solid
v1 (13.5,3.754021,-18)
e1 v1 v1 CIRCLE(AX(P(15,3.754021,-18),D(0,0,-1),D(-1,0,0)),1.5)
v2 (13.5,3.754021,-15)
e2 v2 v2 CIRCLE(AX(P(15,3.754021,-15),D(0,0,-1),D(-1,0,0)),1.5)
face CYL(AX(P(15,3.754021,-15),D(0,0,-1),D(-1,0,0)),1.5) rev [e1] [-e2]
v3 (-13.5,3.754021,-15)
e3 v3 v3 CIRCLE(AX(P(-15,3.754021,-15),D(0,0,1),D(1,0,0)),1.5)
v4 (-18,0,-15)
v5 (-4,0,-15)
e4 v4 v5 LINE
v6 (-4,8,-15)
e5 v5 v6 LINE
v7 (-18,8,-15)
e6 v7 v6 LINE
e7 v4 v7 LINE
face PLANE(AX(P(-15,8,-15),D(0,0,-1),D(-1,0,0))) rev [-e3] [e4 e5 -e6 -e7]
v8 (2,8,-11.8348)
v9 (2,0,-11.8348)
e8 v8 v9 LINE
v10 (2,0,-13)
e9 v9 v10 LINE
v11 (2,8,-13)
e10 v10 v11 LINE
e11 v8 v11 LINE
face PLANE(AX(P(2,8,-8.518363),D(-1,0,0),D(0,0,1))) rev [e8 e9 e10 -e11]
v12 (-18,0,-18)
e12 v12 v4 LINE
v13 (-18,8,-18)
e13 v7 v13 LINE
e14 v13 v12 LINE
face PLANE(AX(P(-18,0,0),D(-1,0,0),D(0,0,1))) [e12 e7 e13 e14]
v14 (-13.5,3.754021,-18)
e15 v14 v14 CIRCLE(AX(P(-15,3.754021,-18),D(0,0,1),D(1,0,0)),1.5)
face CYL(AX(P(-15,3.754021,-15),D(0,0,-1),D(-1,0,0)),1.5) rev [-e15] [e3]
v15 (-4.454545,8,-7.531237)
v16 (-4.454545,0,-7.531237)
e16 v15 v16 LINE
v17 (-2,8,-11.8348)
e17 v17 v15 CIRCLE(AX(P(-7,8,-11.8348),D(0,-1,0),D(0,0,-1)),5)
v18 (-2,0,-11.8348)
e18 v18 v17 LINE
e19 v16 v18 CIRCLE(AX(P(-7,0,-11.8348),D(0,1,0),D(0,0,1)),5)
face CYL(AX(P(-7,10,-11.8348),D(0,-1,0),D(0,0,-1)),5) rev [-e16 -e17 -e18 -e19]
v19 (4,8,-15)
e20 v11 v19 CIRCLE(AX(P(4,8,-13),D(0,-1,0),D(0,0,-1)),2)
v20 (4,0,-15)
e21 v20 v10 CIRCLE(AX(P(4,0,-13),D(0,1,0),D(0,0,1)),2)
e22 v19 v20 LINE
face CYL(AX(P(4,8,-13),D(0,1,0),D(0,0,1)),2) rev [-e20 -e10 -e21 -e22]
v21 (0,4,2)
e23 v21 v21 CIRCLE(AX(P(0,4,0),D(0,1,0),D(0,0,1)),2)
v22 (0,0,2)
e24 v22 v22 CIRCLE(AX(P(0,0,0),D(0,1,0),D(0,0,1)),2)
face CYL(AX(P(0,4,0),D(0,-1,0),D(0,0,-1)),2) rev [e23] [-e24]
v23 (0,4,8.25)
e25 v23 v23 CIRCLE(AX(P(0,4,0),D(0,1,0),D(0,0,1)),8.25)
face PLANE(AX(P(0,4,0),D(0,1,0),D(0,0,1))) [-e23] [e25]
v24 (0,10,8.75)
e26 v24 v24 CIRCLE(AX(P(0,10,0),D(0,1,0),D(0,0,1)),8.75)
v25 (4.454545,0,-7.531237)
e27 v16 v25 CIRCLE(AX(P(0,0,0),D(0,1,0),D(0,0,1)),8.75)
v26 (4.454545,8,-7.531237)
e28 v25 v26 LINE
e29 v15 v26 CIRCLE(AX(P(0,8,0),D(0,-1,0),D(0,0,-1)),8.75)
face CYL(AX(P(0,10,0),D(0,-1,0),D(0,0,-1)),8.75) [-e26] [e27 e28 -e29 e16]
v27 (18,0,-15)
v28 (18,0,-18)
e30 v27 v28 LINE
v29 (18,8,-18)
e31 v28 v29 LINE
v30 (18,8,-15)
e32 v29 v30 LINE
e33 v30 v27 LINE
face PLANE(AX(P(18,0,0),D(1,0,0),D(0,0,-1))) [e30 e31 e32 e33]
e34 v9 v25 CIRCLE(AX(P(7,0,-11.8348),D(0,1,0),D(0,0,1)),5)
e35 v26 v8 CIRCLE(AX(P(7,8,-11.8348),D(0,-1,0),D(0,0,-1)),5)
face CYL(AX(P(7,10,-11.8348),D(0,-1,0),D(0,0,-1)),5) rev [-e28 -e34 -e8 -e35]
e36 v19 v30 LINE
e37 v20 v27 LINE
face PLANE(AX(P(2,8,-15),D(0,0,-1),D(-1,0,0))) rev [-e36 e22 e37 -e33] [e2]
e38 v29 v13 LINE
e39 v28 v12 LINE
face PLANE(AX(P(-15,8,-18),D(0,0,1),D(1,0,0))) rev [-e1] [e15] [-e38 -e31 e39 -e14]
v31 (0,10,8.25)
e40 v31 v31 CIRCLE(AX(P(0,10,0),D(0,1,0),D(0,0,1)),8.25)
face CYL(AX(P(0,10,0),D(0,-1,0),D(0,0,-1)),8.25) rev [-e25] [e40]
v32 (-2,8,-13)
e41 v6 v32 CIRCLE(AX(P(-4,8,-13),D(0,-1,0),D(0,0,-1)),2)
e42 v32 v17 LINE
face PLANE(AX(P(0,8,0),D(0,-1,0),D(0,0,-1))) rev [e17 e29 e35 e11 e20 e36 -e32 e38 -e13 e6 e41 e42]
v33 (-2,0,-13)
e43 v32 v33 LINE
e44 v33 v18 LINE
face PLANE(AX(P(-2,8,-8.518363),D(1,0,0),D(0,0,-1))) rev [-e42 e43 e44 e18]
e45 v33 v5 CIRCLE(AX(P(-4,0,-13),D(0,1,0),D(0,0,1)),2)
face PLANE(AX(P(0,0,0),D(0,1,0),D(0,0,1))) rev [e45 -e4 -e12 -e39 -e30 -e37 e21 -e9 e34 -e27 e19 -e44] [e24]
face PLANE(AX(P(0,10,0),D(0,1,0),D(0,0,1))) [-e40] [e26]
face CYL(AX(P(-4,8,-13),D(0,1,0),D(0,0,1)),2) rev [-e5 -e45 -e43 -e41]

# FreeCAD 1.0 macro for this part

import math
import FreeCAD as App
import Part
import Sketcher

V = App.Vector
Q = App.Units.Quantity


def edges_at(feature, points):
    """Names of the edges that pass closest to the given points."""
    edges = feature.Shape.Edges
    near = lambda p: min(range(len(edges)), key=lambda i: edges[i].distToShape(Part.Vertex(*p))[0])
    return sorted({f"Edge{near(p) + 1}" for p in points})


def add_polygon(sketch, points):
    """Adds a closed chain of lines whose ends are joined by coincident constraints."""
    first, n = sketch.GeometryCount, len(points)
    for a, b in zip(points, points[1:] + points[:1]):
        sketch.addGeometry(Part.LineSegment(App.Vector(*a, 0), App.Vector(*b, 0)), False)
    for i in range(n):
        sketch.addConstraint(Sketcher.Constraint("Coincident", first + i, 2, first + (i + 1) % n, 1))

doc = App.newDocument("Part")
body = doc.addObject("PartDesign::Body", "Body")

# Sketch on XZ plane
sketch1 = doc.addObject("Sketcher::SketchObject", "Sketch")
body.addObject(sketch1)
sketch1.AttachmentSupport = (doc.XZ_Plane, [""])
sketch1.MapMode = "FlatFace"
sketch1.addGeometry(Part.Circle(V(0, 0, 0), V(0, 0, 1), 8.75), False)
sketch1.addGeometry(Part.Circle(V(0, 0, 0), V(0, 0, 1), 8.25), False)
sketch1.addConstraint(Sketcher.Constraint("Coincident", 0, 3, -1, 1))
sketch1.addConstraint(Sketcher.Constraint("Coincident", 1, 3, -1, 1))
sketch1.addConstraint(Sketcher.Constraint("Diameter", 0, Q("17.5 mm")))
sketch1.addConstraint(Sketcher.Constraint("Diameter", 1, Q("16.5 mm")))
pad1 = doc.addObject("PartDesign::Pad", "Pad")
body.addObject(pad1)
pad1.Profile = sketch1
pad1.Length = 10
pad1.Reversed = True

# Sketch on XZ plane
sketch2 = doc.addObject("Sketcher::SketchObject", "Sketch001")
body.addObject(sketch2)
sketch2.AttachmentSupport = (doc.XZ_Plane, [""])
sketch2.MapMode = "FlatFace"
sketch2.addGeometry(Part.Circle(V(0, 0, 0), V(0, 0, 1), 8.25), False)
sketch2.addGeometry(Part.Circle(V(0, 0, 0), V(0, 0, 1), 2), False)
sketch2.addConstraint(Sketcher.Constraint("Coincident", 0, 3, -1, 1))
sketch2.addConstraint(Sketcher.Constraint("Coincident", 1, 3, -1, 1))
sketch2.addConstraint(Sketcher.Constraint("Diameter", 1, Q("4 mm")))
sketch2.addConstraint(Sketcher.Constraint("Diameter", 0, Q("16.5 mm")))
pad2 = doc.addObject("PartDesign::Pad", "Pad001")
body.addObject(pad2)
pad2.Profile = sketch2
pad2.Length = 4
pad2.Reversed = True

# Sketch on XZ plane
sketch3 = doc.addObject("Sketcher::SketchObject", "Sketch002")
body.addObject(sketch3)
sketch3.AttachmentSupport = (doc.XZ_Plane, [""])
sketch3.MapMode = "FlatFace"
add_polygon(sketch3, [(-2, -8.518363), (2, -8.518363), (2, -15), (15, -15), (15, -18), (-15, -18), (-15, -15), (-2, -15)])  # lines 0-7
sketch3.addConstraint(Sketcher.Constraint("Horizontal", 0))
sketch3.addConstraint(Sketcher.Constraint("Vertical", 1))
sketch3.addConstraint(Sketcher.Constraint("Horizontal", 2))
sketch3.addConstraint(Sketcher.Constraint("Vertical", 3))
sketch3.addConstraint(Sketcher.Constraint("Horizontal", 4))
sketch3.addConstraint(Sketcher.Constraint("Vertical", 5))
sketch3.addConstraint(Sketcher.Constraint("Horizontal", 6))
sketch3.addConstraint(Sketcher.Constraint("Vertical", 7))
sketch3.addConstraint(Sketcher.Constraint("Symmetric", 2, 2, 5, 2, -2))
sketch3.addConstraint(Sketcher.Constraint("Equal", 2, 6))
sketch3.addConstraint(Sketcher.Constraint("DistanceX", 0, 1, 0, 2, Q("4 mm")))
sketch3.addConstraint(Sketcher.Constraint("DistanceX", 2, 1, 2, 2, Q("13 mm")))
sketch3.addConstraint(Sketcher.Constraint("DistanceY", 3, 2, 3, 1, Q("3 mm")))
sketch3.addConstraint(Sketcher.Constraint("DistanceY", 1, 2, -1, 1, Q("15 mm")))
sketch3.addConstraint(Sketcher.Constraint("DistanceY", 1, 2, 1, 1, Q("6.481637 mm")))
pad3 = doc.addObject("PartDesign::Pad", "Pad002")
body.addObject(pad3)
pad3.Profile = sketch3
pad3.Length = 8
pad3.Reversed = True

# Sketch on YZ plane
sketch4 = doc.addObject("Sketcher::SketchObject", "Sketch003")
body.addObject(sketch4)
sketch4.AttachmentSupport = (doc.YZ_Plane, [""])
sketch4.MapMode = "FlatFace"
sketch4.AttachmentOffset = App.Placement(V(0, 0, 15), App.Rotation())
add_polygon(sketch4, [(8, -15), (0, -15), (0, -18), (8, -18)])  # lines 0-3
sketch4.addConstraint(Sketcher.Constraint("Horizontal", 0))
sketch4.addConstraint(Sketcher.Constraint("Vertical", 1))
sketch4.addConstraint(Sketcher.Constraint("Horizontal", 2))
sketch4.addConstraint(Sketcher.Constraint("Vertical", 3))
sketch4.addConstraint(Sketcher.Constraint("PointOnObject", 0, 2, -2))
sketch4.addConstraint(Sketcher.Constraint("DistanceX", 0, 2, 0, 1, Q("8 mm")))
sketch4.addConstraint(Sketcher.Constraint("DistanceY", 1, 2, 1, 1, Q("3 mm")))
sketch4.addConstraint(Sketcher.Constraint("DistanceY", 0, 2, -1, 1, Q("15 mm")))
pad4 = doc.addObject("PartDesign::Pad", "Pad003")
body.addObject(pad4)
pad4.Profile = sketch4
pad4.Length = 3

# Sketch on YZ plane
sketch5 = doc.addObject("Sketcher::SketchObject", "Sketch004")
body.addObject(sketch5)
sketch5.AttachmentSupport = (doc.YZ_Plane, [""])
sketch5.MapMode = "FlatFace"
sketch5.AttachmentOffset = App.Placement(V(0, 0, -15), App.Rotation())
add_polygon(sketch5, [(8, -18), (0, -18), (0, -15), (8, -15)])  # lines 0-3
sketch5.addConstraint(Sketcher.Constraint("Horizontal", 0))
sketch5.addConstraint(Sketcher.Constraint("Vertical", 1))
sketch5.addConstraint(Sketcher.Constraint("Horizontal", 2))
sketch5.addConstraint(Sketcher.Constraint("Vertical", 3))
sketch5.addConstraint(Sketcher.Constraint("PointOnObject", 0, 2, -2))
sketch5.addConstraint(Sketcher.Constraint("DistanceX", 0, 2, 0, 1, Q("8 mm")))
sketch5.addConstraint(Sketcher.Constraint("DistanceY", 1, 1, 1, 2, Q("3 mm")))
sketch5.addConstraint(Sketcher.Constraint("DistanceY", 0, 2, -1, 1, Q("18 mm")))
pad5 = doc.addObject("PartDesign::Pad", "Pad004")
body.addObject(pad5)
pad5.Profile = sketch5
pad5.Length = 3
pad5.Reversed = True

# Sketch on XY plane
sketch6 = doc.addObject("Sketcher::SketchObject", "Sketch005")
body.addObject(sketch6)
sketch6.AttachmentSupport = (doc.XY_Plane, [""])
sketch6.MapMode = "FlatFace"
sketch6.AttachmentOffset = App.Placement(V(0, 0, -18), App.Rotation())
sketch6.addGeometry(Part.Circle(V(15, 3.754021, 0), V(0, 0, 1), 1.5), False)
sketch6.addConstraint(Sketcher.Constraint("Diameter", 0, Q("3 mm")))
sketch6.addConstraint(Sketcher.Constraint("DistanceX", -1, 1, 0, 3, Q("15 mm")))
sketch6.addConstraint(Sketcher.Constraint("DistanceY", -1, 1, 0, 3, Q("3.754021 mm")))
pocket1 = doc.addObject("PartDesign::Pocket", "Pocket")
body.addObject(pocket1)
pocket1.Profile = sketch6
pocket1.Length = 3
pocket1.Reversed = True
doc.recompute()

mirrored = doc.addObject("PartDesign::Mirrored", "Mirrored")
body.addObject(mirrored)
mirrored.Originals = [pocket1]
mirrored.MirrorPlane = (doc.YZ_Plane, [""])
body.Tip = mirrored
doc.recompute()

fillet = doc.addObject("PartDesign::Fillet", "Fillet")
body.addObject(fillet)
fillet.Base = (mirrored, edges_at(mirrored, [(-2, 4, -8.518), (2, 4, -8.518)]))
fillet.Radius = 5
doc.recompute()

fillet2 = doc.addObject("PartDesign::Fillet", "Fillet001")
body.addObject(fillet2)
fillet2.Base = (fillet, edges_at(fillet, [(-2, 4, -15), (2, 4, -15)]))
fillet2.Radius = 2
body2 = doc.addObject("PartDesign::Body", "Body001")

# Sketch on XZ plane
sketch7 = doc.addObject("Sketcher::SketchObject", "Sketch006")
body2.addObject(sketch7)
sketch7.AttachmentSupport = (doc.getObject("XZ_Plane001"), [""])
sketch7.MapMode = "FlatFace"
sketch7.addGeometry(Part.Circle(V(27.184955, 0, 0), V(0, 0, 1), 8.75), False)
sketch7.addGeometry(Part.Circle(V(27.184955, 0, 0), V(0, 0, 1), 8.25), False)
sketch7.addConstraint(Sketcher.Constraint("Coincident", 1, 3, 0, 3))
sketch7.addConstraint(Sketcher.Constraint("PointOnObject", 0, 3, -1))
sketch7.addConstraint(Sketcher.Constraint("Diameter", 0, Q("17.5 mm")))
sketch7.addConstraint(Sketcher.Constraint("Diameter", 1, Q("16.5 mm")))
sketch7.addConstraint(Sketcher.Constraint("DistanceX", -1, 1, 0, 3, Q("27.184955 mm")))
pad6 = doc.addObject("PartDesign::Pad", "Pad005")
body2.addObject(pad6)
pad6.Profile = sketch7
pad6.Length = 8
pad6.Reversed = True

# Sketch on XZ plane
sketch8 = doc.addObject("Sketcher::SketchObject", "Sketch007")
body2.addObject(sketch8)
sketch8.AttachmentSupport = (doc.getObject("XZ_Plane001"), [""])
sketch8.MapMode = "FlatFace"
sketch8.addGeometry(Part.Circle(V(27.184955, 0, 0), V(0, 0, 1), 8.25), False)
sketch8.addGeometry(Part.Circle(V(27.184955, 0, 0), V(0, 0, 1), 6), False)
sketch8.addConstraint(Sketcher.Constraint("Coincident", 1, 3, 0, 3))
sketch8.addConstraint(Sketcher.Constraint("PointOnObject", 0, 3, -1))
sketch8.addConstraint(Sketcher.Constraint("Diameter", 1, Q("12 mm")))
sketch8.addConstraint(Sketcher.Constraint("Diameter", 0, Q("16.5 mm")))
sketch8.addConstraint(Sketcher.Constraint("DistanceX", -1, 1, 0, 3, Q("27.184955 mm")))
pad7 = doc.addObject("PartDesign::Pad", "Pad006")
body2.addObject(pad7)
pad7.Profile = sketch8
pad7.Length = 2
pad7.Reversed = True

# Sketch on XZ plane
sketch9 = doc.addObject("Sketcher::SketchObject", "Sketch008")
body2.addObject(sketch9)
sketch9.AttachmentSupport = (doc.getObject("XZ_Plane001"), [""])
sketch9.MapMode = "FlatFace"
add_polygon(sketch9, [(45.184955, 18), (45.184955, 14.663868), (29.184955, 14.663868), (29.184955, 8.518363), (25.184955, 8.518363), (25.184955, 14.663868), (9.184955, 14.663868), (9.184955, 18)])  # lines 0-7
sketch9.addConstraint(Sketcher.Constraint("Vertical", 0))
sketch9.addConstraint(Sketcher.Constraint("Horizontal", 1))
sketch9.addConstraint(Sketcher.Constraint("Vertical", 2))
sketch9.addConstraint(Sketcher.Constraint("Horizontal", 3))
sketch9.addConstraint(Sketcher.Constraint("Vertical", 4))
sketch9.addConstraint(Sketcher.Constraint("Horizontal", 5))
sketch9.addConstraint(Sketcher.Constraint("Vertical", 6))
sketch9.addConstraint(Sketcher.Constraint("Horizontal", 7))
sketch9.addConstraint(Sketcher.Constraint("Horizontal", 1, 2, 4, 2))
sketch9.addConstraint(Sketcher.Constraint("Equal", 1, 5))
sketch9.addConstraint(Sketcher.Constraint("DistanceX", 1, 2, 1, 1, Q("16 mm")))
sketch9.addConstraint(Sketcher.Constraint("DistanceX", 3, 2, 3, 1, Q("4 mm")))
sketch9.addConstraint(Sketcher.Constraint("DistanceY", -1, 1, 6, 2, Q("18 mm")))
sketch9.addConstraint(Sketcher.Constraint("DistanceY", 0, 2, 0, 1, Q("3.336132 mm")))
sketch9.addConstraint(Sketcher.Constraint("DistanceY", 2, 2, 2, 1, Q("6.145505 mm")))
sketch9.addConstraint(Sketcher.Constraint("DistanceX", -1, 1, 0, 2, Q("45.184955 mm")))
pad8 = doc.addObject("PartDesign::Pad", "Pad007")
body2.addObject(pad8)
pad8.Profile = sketch9
pad8.Length = 8
pad8.Reversed = True

# Sketch on XY plane
sketch10 = doc.addObject("Sketcher::SketchObject", "Sketch009")
body2.addObject(sketch10)
sketch10.AttachmentSupport = (doc.getObject("XY_Plane001"), [""])
sketch10.MapMode = "FlatFace"
sketch10.AttachmentOffset = App.Placement(V(0, 0, 18), App.Rotation())
sketch10.addGeometry(Part.Circle(V(12.184955, 4, 0), V(0, 0, 1), 1.5), False)
sketch10.addGeometry(Part.Circle(V(42.184955, 4, 0), V(0, 0, 1), 1.5), False)
sketch10.addConstraint(Sketcher.Constraint("Equal", 0, 1))
sketch10.addConstraint(Sketcher.Constraint("Horizontal", 0, 3, 1, 3))
sketch10.addConstraint(Sketcher.Constraint("Diameter", 0, Q("3 mm")))
sketch10.addConstraint(Sketcher.Constraint("DistanceY", -1, 1, 0, 3, Q("4 mm")))
sketch10.addConstraint(Sketcher.Constraint("DistanceX", 0, 3, 1, 3, Q("30 mm")))
sketch10.addConstraint(Sketcher.Constraint("DistanceX", -1, 1, 0, 3, Q("12.184955 mm")))
pocket2 = doc.addObject("PartDesign::Pocket", "Pocket001")
body2.addObject(pocket2)
pocket2.Profile = sketch10
pocket2.Length = 8

# Sketch on XY plane
sketch11 = doc.addObject("Sketcher::SketchObject", "Sketch010")
body2.addObject(sketch11)
sketch11.AttachmentSupport = (doc.getObject("XY_Plane001"), [""])
sketch11.MapMode = "FlatFace"
sketch11.AttachmentOffset = App.Placement(V(0, 0, 18), App.Rotation())
sketch11.addGeometry(Part.ArcOfCircle(Part.Circle(V(12.184955, 5, 0), V(0, 0, 1), 1.5), math.radians(0), math.radians(180)), False)
sketch11.addGeometry(Part.LineSegment(V(10.684955, 5, 0), V(10.684955, 3, 0)), False)
sketch11.addGeometry(Part.ArcOfCircle(Part.Circle(V(12.184955, 3, 0), V(0, 0, 1), 1.5), math.radians(180), math.radians(360)), False)
sketch11.addGeometry(Part.LineSegment(V(13.684955, 3, 0), V(13.684955, 5, 0)), False)
sketch11.addConstraint(Sketcher.Constraint("Tangent", 0, 2, 1, 1))
sketch11.addConstraint(Sketcher.Constraint("Tangent", 1, 2, 2, 1))
sketch11.addConstraint(Sketcher.Constraint("Tangent", 2, 2, 3, 1))
sketch11.addConstraint(Sketcher.Constraint("Tangent", 3, 2, 0, 1))
sketch11.addConstraint(Sketcher.Constraint("Vertical", 1))
sketch11.addConstraint(Sketcher.Constraint("Vertical", 3))
sketch11.addConstraint(Sketcher.Constraint("Radius", 0, Q("1.5 mm")))
sketch11.addConstraint(Sketcher.Constraint("DistanceY", 1, 2, 1, 1, Q("2 mm")))
sketch11.addConstraint(Sketcher.Constraint("DistanceY", -1, 1, 0, 3, Q("5 mm")))
sketch11.addConstraint(Sketcher.Constraint("DistanceX", -1, 1, 0, 3, Q("12.184955 mm")))
pocket3 = doc.addObject("PartDesign::Pocket", "Pocket002")
body2.addObject(pocket3)
pocket3.Profile = sketch11
pocket3.Length = 8

# Sketch on XY plane
sketch12 = doc.addObject("Sketcher::SketchObject", "Sketch011")
body2.addObject(sketch12)
sketch12.AttachmentSupport = (doc.getObject("XY_Plane001"), [""])
sketch12.MapMode = "FlatFace"
sketch12.AttachmentOffset = App.Placement(V(0, 0, 18), App.Rotation())
sketch12.addGeometry(Part.ArcOfCircle(Part.Circle(V(42.184955, 5, 0), V(0, 0, 1), 1.5), math.radians(0), math.radians(180)), False)
sketch12.addGeometry(Part.LineSegment(V(40.684955, 5, 0), V(40.684955, 3, 0)), False)
sketch12.addGeometry(Part.ArcOfCircle(Part.Circle(V(42.184955, 3, 0), V(0, 0, 1), 1.5), math.radians(180), math.radians(360)), False)
sketch12.addGeometry(Part.LineSegment(V(43.684955, 3, 0), V(43.684955, 5, 0)), False)
sketch12.addConstraint(Sketcher.Constraint("Tangent", 0, 2, 1, 1))
sketch12.addConstraint(Sketcher.Constraint("Tangent", 1, 2, 2, 1))
sketch12.addConstraint(Sketcher.Constraint("Tangent", 2, 2, 3, 1))
sketch12.addConstraint(Sketcher.Constraint("Tangent", 3, 2, 0, 1))
sketch12.addConstraint(Sketcher.Constraint("Vertical", 1))
sketch12.addConstraint(Sketcher.Constraint("Vertical", 3))
sketch12.addConstraint(Sketcher.Constraint("Radius", 0, Q("1.5 mm")))
sketch12.addConstraint(Sketcher.Constraint("DistanceY", 1, 2, 1, 1, Q("2 mm")))
sketch12.addConstraint(Sketcher.Constraint("DistanceY", -1, 1, 0, 3, Q("5 mm")))
sketch12.addConstraint(Sketcher.Constraint("DistanceX", -1, 1, 0, 3, Q("42.184955 mm")))
pocket4 = doc.addObject("PartDesign::Pocket", "Pocket003")
body2.addObject(pocket4)
pocket4.Profile = sketch12
pocket4.Length = 8
body3 = doc.addObject("PartDesign::Body", "Body002")

# Sketch on XZ plane
sketch13 = doc.addObject("Sketcher::SketchObject", "Sketch012")
body3.addObject(sketch13)
sketch13.AttachmentSupport = (doc.getObject("XZ_Plane002"), [""])
sketch13.MapMode = "FlatFace"
sketch13.addGeometry(Part.Circle(V(-35.091635, 0, 0), V(0, 0, 1), 8.75), False)
sketch13.addGeometry(Part.Circle(V(-35.091635, 0, 0), V(0, 0, 1), 8.25), False)
sketch13.addConstraint(Sketcher.Constraint("Coincident", 1, 3, 0, 3))
sketch13.addConstraint(Sketcher.Constraint("PointOnObject", 0, 3, -1))
sketch13.addConstraint(Sketcher.Constraint("Diameter", 0, Q("17.5 mm")))
sketch13.addConstraint(Sketcher.Constraint("Diameter", 1, Q("16.5 mm")))
sketch13.addConstraint(Sketcher.Constraint("DistanceX", 0, 3, -1, 1, Q("35.091635 mm")))
pad9 = doc.addObject("PartDesign::Pad", "Pad008")
body3.addObject(pad9)
pad9.Profile = sketch13
pad9.Length = 8
pad9.Reversed = True

# Sketch on XZ plane
sketch14 = doc.addObject("Sketcher::SketchObject", "Sketch013")
body3.addObject(sketch14)
sketch14.AttachmentSupport = (doc.getObject("XZ_Plane002"), [""])
sketch14.MapMode = "FlatFace"
add_polygon(sketch14, [(-37.091635, 8.518363), (-37.091635, 15), (-53.091635, 15), (-53.091635, 18), (-17.091635, 18), (-17.091635, 15), (-33.091635, 15), (-33.091635, 8.518363)])  # lines 0-7
sketch14.addConstraint(Sketcher.Constraint("Vertical", 0))
sketch14.addConstraint(Sketcher.Constraint("Horizontal", 1))
sketch14.addConstraint(Sketcher.Constraint("Vertical", 2))
sketch14.addConstraint(Sketcher.Constraint("Horizontal", 3))
sketch14.addConstraint(Sketcher.Constraint("Vertical", 4))
sketch14.addConstraint(Sketcher.Constraint("Horizontal", 5))
sketch14.addConstraint(Sketcher.Constraint("Vertical", 6))
sketch14.addConstraint(Sketcher.Constraint("Horizontal", 7))
sketch14.addConstraint(Sketcher.Constraint("Horizontal", 1, 2, 4, 2))
sketch14.addConstraint(Sketcher.Constraint("Equal", 1, 5))
sketch14.addConstraint(Sketcher.Constraint("DistanceX", 1, 2, 1, 1, Q("16 mm")))
sketch14.addConstraint(Sketcher.Constraint("DistanceX", 3, 1, 3, 2, Q("36 mm")))
sketch14.addConstraint(Sketcher.Constraint("DistanceY", 2, 1, 2, 2, Q("3 mm")))
sketch14.addConstraint(Sketcher.Constraint("DistanceY", -1, 1, 0, 2, Q("15 mm")))
sketch14.addConstraint(Sketcher.Constraint("DistanceY", 0, 1, 0, 2, Q("6.481637 mm")))
sketch14.addConstraint(Sketcher.Constraint("DistanceX", 0, 2, -1, 1, Q("37.091635 mm")))
pad10 = doc.addObject("PartDesign::Pad", "Pad009")
body3.addObject(pad10)
pad10.Profile = sketch14
pad10.Length = 8
pad10.Reversed = True

# Sketch on XY plane
sketch15 = doc.addObject("Sketcher::SketchObject", "Sketch014")
body3.addObject(sketch15)
sketch15.AttachmentSupport = (doc.getObject("XY_Plane002"), [""])
sketch15.MapMode = "FlatFace"
sketch15.AttachmentOffset = App.Placement(V(0, 0, 18), App.Rotation())
sketch15.addGeometry(Part.Circle(V(-50.091635, 4, 0), V(0, 0, 1), 1.5), False)
sketch15.addGeometry(Part.Circle(V(-20.091635, 4, 0), V(0, 0, 1), 1.5), False)
sketch15.addConstraint(Sketcher.Constraint("Equal", 0, 1))
sketch15.addConstraint(Sketcher.Constraint("Horizontal", 0, 3, 1, 3))
sketch15.addConstraint(Sketcher.Constraint("Diameter", 0, Q("3 mm")))
sketch15.addConstraint(Sketcher.Constraint("DistanceY", -1, 1, 0, 3, Q("4 mm")))
sketch15.addConstraint(Sketcher.Constraint("DistanceX", 0, 3, 1, 3, Q("30 mm")))
sketch15.addConstraint(Sketcher.Constraint("DistanceX", 0, 3, -1, 1, Q("50.091635 mm")))
pocket5 = doc.addObject("PartDesign::Pocket", "Pocket004")
body3.addObject(pocket5)
pocket5.Profile = sketch15
pocket5.Length = 8
body4 = doc.addObject("PartDesign::Body", "Body003")

# Sketch on XZ plane
sketch16 = doc.addObject("Sketcher::SketchObject", "Sketch015")
body4.addObject(sketch16)
sketch16.AttachmentSupport = (doc.getObject("XZ_Plane003"), [""])
sketch16.MapMode = "FlatFace"
add_polygon(sketch16, [(-2.72222, 15.809792), (-33.937696, -15.405685), (-56.287548, -12.073067), (-78.804576, 10.443961), (-68.183748, 30.767124), (-4.034255, 33.891519), (60.531616, 22.76116), (41.967984, -12.760711), (14.647012, -8.915639), (14.647012, 5.07813)])  # lines 0-9
sketch16.addConstraint(Sketcher.Constraint("Vertical", 8))
sketch16.addConstraint(Sketcher.Constraint("Perpendicular", 0, 2))
sketch16.addConstraint(Sketcher.Constraint("Parallel", 3, 6))
sketch16.addConstraint(Sketcher.Constraint("Angle", 0, Q("-135 deg")))
sketch16.addConstraint(Sketcher.Constraint("DistanceY", 8, 1, 8, 2, Q("13.993769 mm")))
sketch16.addConstraint(Sketcher.Constraint("DistanceX", 3, 2, 1, 2, Q("11.896199 mm")))
sketch16.addConstraint(Sketcher.Constraint("DistanceY", 2, 2, 5, 2, Q("12.317199 mm")))
sketch16.addConstraint(Sketcher.Constraint("DistanceY", 7, 2, 5, 2, Q("31.6768 mm")))
sketch16.addConstraint(Sketcher.Constraint("Distance", 0, Q("44.14535 mm")))
sketch16.addConstraint(Sketcher.Constraint("Distance", 1, Q("22.596952 mm")))
sketch16.addConstraint(Sketcher.Constraint("Distance", 9, Q("20.41712 mm")))
sketch16.addConstraint(Sketcher.Constraint("DistanceX", 1, 2, -1, 1, Q("56.287548 mm")))
sketch16.addConstraint(Sketcher.Constraint("DistanceY", -1, 1, 2, 2, Q("10.443961 mm")))
sketch16.addConstraint(Sketcher.Constraint("DistanceY", -1, 1, 4, 2, Q("33.891519 mm")))
sketch16.addConstraint(Sketcher.Constraint("DistanceY", 6, 2, -1, 1, Q("12.760711 mm")))
sketch16.addConstraint(Sketcher.Constraint("DistanceX", 9, 2, -1, 1, Q("2.72222 mm")))
sketch16.addConstraint(Sketcher.Constraint("DistanceY", -1, 1, 9, 2, Q("15.809792 mm")))
sketch16.addConstraint(Sketcher.Constraint("DistanceY", 1, 2, 3, 2, Q("42.840191 mm")))
sketch16.addConstraint(Sketcher.Constraint("DistanceX", 0, 2, 4, 2, Q("29.903441 mm")))
sketch16.addConstraint(Sketcher.Constraint("DistanceX", 4, 2, 5, 2, Q("64.565871 mm")))
pad11 = doc.addObject("PartDesign::Pad", "Pad010")
body4.addObject(pad11)
pad11.Profile = sketch16
pad11.Length = 10
pad11.Reversed = True
doc.recompute()

body5 = doc.addObject("PartDesign::Body", "Body004")
body5.BaseFeature = body4
boolean = doc.addObject("PartDesign::Boolean", "Boolean")
body2.addObject(boolean)
boolean.Type = "Cut"
boolean.addObjects([body5])
doc.recompute()

boolean2 = doc.addObject("PartDesign::Boolean", "Boolean001")
body3.addObject(boolean2)
boolean2.Type = "Cut"
boolean2.addObjects([body4])

doc.recompute()
